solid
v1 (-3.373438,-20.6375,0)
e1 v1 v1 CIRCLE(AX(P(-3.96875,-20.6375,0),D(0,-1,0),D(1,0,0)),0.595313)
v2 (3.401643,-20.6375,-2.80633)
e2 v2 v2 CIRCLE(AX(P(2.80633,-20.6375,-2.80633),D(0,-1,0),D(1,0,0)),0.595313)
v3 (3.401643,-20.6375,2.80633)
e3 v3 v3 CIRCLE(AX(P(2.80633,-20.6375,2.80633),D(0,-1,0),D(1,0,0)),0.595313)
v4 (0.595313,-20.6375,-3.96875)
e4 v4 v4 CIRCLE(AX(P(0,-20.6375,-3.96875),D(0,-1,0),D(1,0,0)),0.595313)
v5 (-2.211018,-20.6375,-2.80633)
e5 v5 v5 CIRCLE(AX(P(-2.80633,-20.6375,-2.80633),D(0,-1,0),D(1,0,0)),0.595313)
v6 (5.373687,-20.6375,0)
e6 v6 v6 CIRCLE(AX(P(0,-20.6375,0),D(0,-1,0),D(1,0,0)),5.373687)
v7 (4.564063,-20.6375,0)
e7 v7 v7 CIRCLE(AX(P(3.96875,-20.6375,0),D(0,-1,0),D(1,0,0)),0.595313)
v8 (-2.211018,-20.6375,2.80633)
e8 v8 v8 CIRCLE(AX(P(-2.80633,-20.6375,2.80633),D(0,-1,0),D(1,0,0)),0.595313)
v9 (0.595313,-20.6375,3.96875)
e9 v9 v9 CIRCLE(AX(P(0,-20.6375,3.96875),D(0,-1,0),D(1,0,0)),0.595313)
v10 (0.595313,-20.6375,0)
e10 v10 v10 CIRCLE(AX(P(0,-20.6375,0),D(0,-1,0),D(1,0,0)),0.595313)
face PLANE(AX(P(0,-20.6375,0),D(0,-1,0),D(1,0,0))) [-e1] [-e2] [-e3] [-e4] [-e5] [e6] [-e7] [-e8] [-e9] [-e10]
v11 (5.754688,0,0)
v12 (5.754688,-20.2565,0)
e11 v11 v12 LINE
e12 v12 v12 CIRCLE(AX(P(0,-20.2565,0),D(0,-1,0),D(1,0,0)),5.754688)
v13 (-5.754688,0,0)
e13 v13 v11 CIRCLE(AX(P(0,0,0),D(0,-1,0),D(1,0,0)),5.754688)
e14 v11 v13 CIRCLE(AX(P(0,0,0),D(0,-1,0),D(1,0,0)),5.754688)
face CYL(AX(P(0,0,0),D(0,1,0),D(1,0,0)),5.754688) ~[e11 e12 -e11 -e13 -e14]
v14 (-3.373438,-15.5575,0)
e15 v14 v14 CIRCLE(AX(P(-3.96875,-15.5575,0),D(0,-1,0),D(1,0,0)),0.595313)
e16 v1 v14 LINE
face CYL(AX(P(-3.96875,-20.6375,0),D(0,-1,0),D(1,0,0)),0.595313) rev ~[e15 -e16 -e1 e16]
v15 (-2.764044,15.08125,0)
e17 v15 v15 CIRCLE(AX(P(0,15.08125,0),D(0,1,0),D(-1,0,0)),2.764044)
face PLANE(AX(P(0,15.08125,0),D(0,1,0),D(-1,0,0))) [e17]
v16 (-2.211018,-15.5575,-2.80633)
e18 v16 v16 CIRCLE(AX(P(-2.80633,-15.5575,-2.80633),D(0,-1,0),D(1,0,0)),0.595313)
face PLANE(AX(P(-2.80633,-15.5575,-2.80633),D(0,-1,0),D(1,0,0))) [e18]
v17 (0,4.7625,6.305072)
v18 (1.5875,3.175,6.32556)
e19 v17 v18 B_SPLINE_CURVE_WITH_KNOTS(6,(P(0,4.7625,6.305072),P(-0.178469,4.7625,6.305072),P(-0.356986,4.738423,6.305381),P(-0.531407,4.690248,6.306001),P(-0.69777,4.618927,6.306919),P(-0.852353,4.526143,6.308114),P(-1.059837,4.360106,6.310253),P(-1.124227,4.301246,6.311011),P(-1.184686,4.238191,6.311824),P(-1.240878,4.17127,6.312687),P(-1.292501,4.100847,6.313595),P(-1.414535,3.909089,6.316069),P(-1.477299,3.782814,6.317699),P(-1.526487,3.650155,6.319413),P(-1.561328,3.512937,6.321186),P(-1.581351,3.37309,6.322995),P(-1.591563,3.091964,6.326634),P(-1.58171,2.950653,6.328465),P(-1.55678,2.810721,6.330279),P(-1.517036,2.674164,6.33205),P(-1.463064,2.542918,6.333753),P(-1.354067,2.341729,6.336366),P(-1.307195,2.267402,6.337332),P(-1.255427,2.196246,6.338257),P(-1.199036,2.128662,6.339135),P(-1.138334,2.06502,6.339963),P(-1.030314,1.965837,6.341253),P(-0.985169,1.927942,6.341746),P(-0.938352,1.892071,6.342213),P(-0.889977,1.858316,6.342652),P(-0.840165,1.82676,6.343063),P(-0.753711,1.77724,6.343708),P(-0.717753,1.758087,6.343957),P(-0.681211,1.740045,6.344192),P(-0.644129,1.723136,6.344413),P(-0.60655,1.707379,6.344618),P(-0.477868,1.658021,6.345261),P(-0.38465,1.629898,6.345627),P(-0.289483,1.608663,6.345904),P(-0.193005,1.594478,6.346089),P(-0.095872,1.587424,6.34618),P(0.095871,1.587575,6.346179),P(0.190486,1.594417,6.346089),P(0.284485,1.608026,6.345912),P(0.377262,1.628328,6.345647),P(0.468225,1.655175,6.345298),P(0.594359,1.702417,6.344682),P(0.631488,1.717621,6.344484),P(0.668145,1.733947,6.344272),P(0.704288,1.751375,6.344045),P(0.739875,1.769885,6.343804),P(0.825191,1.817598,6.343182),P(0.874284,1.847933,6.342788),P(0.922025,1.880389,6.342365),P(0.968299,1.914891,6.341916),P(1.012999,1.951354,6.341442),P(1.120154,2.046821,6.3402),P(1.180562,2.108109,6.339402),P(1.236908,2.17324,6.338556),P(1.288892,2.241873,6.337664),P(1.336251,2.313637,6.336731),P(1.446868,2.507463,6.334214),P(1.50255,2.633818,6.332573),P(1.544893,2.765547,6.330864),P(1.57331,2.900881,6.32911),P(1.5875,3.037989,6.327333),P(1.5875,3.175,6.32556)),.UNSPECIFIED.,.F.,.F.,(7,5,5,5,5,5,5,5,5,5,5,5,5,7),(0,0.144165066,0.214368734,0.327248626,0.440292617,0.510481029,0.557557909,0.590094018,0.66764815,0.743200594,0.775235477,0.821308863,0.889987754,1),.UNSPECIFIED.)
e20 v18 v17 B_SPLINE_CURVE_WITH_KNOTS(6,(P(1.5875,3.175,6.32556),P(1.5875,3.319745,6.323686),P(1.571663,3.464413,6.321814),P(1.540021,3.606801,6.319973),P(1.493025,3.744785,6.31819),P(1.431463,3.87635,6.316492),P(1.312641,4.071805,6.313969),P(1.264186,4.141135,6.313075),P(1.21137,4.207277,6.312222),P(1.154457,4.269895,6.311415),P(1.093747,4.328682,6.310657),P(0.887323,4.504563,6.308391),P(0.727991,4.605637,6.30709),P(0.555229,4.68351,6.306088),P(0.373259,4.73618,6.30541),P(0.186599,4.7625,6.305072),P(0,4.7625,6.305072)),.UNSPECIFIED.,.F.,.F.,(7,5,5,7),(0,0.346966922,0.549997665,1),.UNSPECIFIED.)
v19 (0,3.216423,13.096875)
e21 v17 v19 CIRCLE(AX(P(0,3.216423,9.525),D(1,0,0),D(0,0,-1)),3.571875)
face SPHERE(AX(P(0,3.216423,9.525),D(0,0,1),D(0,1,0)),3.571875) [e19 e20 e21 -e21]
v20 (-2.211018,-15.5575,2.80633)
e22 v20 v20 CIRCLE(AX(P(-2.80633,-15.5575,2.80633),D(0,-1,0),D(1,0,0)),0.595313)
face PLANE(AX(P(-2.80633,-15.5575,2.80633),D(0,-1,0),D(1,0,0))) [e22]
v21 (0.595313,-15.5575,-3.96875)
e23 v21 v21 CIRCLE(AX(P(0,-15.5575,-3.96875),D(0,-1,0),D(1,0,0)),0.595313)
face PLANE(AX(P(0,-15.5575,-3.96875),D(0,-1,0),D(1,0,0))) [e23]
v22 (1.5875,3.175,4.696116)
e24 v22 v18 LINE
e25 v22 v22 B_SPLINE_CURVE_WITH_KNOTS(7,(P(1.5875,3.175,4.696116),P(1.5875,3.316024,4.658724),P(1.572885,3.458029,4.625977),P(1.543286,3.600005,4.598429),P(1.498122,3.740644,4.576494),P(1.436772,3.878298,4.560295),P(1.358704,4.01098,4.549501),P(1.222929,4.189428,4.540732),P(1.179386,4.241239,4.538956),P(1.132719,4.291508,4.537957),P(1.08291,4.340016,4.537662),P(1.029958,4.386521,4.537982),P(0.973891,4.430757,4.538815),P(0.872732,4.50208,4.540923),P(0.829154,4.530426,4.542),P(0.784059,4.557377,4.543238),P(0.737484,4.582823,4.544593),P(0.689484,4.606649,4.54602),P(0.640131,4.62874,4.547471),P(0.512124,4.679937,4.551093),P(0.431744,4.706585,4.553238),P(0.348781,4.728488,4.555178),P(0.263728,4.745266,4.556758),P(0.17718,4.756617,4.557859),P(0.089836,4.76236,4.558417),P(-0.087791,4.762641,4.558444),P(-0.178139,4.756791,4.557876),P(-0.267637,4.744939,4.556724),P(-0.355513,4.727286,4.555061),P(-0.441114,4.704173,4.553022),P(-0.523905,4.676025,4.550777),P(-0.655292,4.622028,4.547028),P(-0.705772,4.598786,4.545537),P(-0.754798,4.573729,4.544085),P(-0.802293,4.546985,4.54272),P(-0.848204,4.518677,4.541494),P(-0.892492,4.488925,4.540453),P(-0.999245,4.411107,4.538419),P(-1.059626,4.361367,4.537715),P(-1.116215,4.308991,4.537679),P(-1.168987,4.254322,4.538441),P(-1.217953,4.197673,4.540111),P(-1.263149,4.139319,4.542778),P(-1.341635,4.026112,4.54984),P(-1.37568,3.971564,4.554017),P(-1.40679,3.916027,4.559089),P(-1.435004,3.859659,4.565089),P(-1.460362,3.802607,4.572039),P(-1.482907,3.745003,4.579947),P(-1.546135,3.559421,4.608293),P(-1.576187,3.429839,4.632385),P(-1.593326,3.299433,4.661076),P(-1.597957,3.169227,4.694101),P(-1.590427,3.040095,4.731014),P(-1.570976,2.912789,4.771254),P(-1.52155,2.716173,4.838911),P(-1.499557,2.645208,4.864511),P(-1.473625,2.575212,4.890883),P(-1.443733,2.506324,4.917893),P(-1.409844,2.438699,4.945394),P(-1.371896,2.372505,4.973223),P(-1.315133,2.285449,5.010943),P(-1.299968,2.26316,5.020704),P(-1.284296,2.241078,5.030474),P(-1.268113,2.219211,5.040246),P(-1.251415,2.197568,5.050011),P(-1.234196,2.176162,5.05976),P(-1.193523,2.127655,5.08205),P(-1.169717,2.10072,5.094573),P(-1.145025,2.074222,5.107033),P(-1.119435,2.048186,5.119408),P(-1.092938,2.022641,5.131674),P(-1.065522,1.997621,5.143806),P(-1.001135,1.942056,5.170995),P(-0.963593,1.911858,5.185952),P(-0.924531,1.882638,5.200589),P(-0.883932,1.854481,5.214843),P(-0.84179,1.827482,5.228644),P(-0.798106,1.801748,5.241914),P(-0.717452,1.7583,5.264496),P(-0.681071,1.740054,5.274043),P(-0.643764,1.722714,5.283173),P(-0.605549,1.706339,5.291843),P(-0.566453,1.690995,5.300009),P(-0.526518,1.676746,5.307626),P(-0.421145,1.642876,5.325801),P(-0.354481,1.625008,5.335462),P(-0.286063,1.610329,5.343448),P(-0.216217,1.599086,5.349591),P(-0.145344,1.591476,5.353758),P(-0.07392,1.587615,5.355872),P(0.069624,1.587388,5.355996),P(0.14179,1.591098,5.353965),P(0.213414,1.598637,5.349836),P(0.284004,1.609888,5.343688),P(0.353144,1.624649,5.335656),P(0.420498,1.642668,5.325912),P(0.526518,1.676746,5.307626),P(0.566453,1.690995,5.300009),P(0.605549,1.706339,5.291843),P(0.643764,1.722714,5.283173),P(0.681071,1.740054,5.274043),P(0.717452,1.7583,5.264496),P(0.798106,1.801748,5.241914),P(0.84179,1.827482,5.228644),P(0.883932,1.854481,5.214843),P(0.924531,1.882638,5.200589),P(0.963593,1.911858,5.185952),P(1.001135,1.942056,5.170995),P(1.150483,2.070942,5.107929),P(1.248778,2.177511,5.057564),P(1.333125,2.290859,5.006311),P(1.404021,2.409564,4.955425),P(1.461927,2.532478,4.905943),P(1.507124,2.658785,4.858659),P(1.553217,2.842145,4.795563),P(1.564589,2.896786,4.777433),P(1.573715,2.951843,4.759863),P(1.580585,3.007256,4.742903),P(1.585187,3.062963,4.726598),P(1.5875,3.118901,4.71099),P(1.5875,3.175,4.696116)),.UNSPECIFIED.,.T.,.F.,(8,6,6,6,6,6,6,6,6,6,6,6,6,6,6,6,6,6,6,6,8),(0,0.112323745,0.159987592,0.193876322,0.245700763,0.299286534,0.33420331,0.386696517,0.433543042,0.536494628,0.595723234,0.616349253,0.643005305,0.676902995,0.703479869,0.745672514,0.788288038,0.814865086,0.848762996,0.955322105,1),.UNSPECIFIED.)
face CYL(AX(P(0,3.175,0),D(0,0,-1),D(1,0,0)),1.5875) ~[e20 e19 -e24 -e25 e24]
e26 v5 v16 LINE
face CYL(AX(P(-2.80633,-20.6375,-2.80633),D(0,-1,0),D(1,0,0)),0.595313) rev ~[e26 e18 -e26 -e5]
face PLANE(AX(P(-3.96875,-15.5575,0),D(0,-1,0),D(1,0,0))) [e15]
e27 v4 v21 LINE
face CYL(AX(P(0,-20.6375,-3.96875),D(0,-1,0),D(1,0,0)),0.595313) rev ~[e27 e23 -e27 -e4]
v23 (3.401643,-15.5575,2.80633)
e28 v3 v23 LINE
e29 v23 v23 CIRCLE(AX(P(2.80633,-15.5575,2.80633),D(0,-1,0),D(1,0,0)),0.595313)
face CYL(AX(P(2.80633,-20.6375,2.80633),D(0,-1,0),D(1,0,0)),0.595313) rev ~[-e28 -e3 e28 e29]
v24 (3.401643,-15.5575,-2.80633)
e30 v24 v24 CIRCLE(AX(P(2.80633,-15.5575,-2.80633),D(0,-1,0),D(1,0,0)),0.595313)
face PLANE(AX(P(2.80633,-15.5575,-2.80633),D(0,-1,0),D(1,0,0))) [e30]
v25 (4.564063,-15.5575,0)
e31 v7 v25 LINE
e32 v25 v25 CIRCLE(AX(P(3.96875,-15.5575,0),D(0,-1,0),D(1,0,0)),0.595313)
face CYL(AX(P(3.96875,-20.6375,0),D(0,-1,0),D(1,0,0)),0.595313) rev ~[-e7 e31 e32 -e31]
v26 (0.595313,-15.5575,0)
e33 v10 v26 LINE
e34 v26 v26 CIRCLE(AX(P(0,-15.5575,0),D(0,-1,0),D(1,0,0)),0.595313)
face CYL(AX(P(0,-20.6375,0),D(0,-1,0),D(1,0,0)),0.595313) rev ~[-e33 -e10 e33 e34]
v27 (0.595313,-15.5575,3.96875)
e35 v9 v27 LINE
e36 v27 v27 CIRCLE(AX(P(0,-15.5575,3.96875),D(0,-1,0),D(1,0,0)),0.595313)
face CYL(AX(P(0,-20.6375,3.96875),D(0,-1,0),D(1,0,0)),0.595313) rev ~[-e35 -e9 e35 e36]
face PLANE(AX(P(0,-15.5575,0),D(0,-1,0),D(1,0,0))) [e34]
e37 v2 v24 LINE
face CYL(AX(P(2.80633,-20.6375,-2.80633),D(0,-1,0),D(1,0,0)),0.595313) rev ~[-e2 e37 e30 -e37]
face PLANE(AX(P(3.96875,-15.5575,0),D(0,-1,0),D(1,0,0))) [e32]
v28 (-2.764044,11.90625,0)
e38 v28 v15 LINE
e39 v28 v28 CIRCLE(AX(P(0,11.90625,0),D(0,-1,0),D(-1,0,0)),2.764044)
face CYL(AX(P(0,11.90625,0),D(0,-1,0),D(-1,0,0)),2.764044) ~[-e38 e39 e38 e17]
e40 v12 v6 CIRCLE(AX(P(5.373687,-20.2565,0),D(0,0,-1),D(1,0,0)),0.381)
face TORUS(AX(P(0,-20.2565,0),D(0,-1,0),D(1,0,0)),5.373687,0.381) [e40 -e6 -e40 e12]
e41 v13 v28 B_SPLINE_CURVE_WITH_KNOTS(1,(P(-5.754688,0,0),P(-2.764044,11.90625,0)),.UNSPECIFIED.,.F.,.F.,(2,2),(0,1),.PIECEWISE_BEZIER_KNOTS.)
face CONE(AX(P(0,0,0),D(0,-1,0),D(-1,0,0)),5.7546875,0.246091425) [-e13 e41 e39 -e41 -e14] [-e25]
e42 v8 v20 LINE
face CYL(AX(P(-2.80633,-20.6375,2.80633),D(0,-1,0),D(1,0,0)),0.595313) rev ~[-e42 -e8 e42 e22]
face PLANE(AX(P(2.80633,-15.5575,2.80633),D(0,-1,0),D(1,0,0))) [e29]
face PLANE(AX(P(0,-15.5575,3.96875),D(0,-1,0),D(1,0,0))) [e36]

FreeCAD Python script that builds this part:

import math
import FreeCAD as App
import Part
import Sketcher
Q = App.Units.Quantity


def edges_at(feature, points):
    """Names of the edges that pass closest to the given points."""
    edges = feature.Shape.Edges
    near = lambda p: min(range(len(edges)), key=lambda i: edges[i].distToShape(Part.Vertex(*p))[0])
    return sorted({f"Edge{near(p) + 1}" for p in points})

doc = App.newDocument("Part")
body = doc.addObject("PartDesign::Body", "Body")

sketch1 = body.newObject("Sketcher::SketchObject", "Sketch")
sketch1.AttachmentSupport = (doc.getObject("XZ_Plane"), [""])
sketch1.MapMode = "FlatFace"
sketch1.addGeometry(Part.Circle(App.Vector(0, 0, 0), App.Vector(0, 0, 1), 6), False)
sketch1.addConstraint(Sketcher.Constraint("Coincident", 0, 3, -1, 1))
sketch1.addConstraint(Sketcher.Constraint("Diameter", 0, Q("0.453125 in")))
pad1 = body.newObject("PartDesign::Pad", "Pad")
pad1.Profile = sketch1
pad1.Length = Q("0.8125 in")

sketch2 = body.newObject("Sketcher::SketchObject", "Sketch001")
sketch2.AttachmentSupport = (doc.getObject("XZ_Plane"), [""])
sketch2.MapMode = "FlatFace"
sketch2.addGeometry(Part.Circle(App.Vector(0, 0, 0), App.Vector(0, 0, 1), 6), False)
sketch2.addConstraint(Sketcher.Constraint("Coincident", 0, 3, -1, 1))
sketch2.addConstraint(Sketcher.Constraint("Diameter", 0, Q("0.453125 in")))
pad2 = body.newObject("PartDesign::Pad", "Pad001")
pad2.Profile = sketch2
pad2.Length = Q("0.46875 in")
pad2.Reversed = True
pad2.TaperAngle = -14.1

sketch3 = body.newObject("Sketcher::SketchObject", "Sketch002")
sketch3.AttachmentSupport = (doc.getObject("XZ_Plane"), [""])
sketch3.MapMode = "FlatFace"
sketch3.AttachmentOffset = App.Placement(App.Vector(0, 0, -0.46875 * 25.4), App.Rotation())
sketch3.addGeometry(Part.Circle(App.Vector(0, 0, 0), App.Vector(0, 0, 1), 2.8), False)
sketch3.addConstraint(Sketcher.Constraint("Coincident", 0, 3, -1, 1))
sketch3.addConstraint(Sketcher.Constraint("Diameter", 0, 5.528088))
pad3 = body.newObject("PartDesign::Pad", "Pad002")
pad3.Profile = sketch3
pad3.Length = Q("0.125 in")
pad3.Reversed = True

sketch4 = body.newObject("Sketcher::SketchObject", "Sketch003")
sketch4.AttachmentSupport = (doc.getObject("XZ_Plane"), [""])
sketch4.MapMode = "FlatFace"
sketch4.AttachmentOffset = App.Placement(App.Vector(0, 0, 0.8125 * 25.4), App.Rotation())
sketch4.addGeometry(Part.Circle(App.Vector(0, 0, 0), App.Vector(0, 0, 1), 0.6), False)
sketch4.addGeometry(Part.Circle(App.Vector(0, 4, 0), App.Vector(0, 0, 1), 0.6), False)
sketch4.addGeometry(Part.Circle(App.Vector(-2.8, 2.8, 0), App.Vector(0, 0, 1), 0.6), False)
sketch4.addGeometry(Part.Circle(App.Vector(-4, 0, 0), App.Vector(0, 0, 1), 0.6), False)
sketch4.addGeometry(Part.Circle(App.Vector(-2.8, -2.8, 0), App.Vector(0, 0, 1), 0.6), False)
sketch4.addGeometry(Part.Circle(App.Vector(0, -4, 0), App.Vector(0, 0, 1), 0.6), False)
sketch4.addGeometry(Part.Circle(App.Vector(2.8, -2.8, 0), App.Vector(0, 0, 1), 0.6), False)
sketch4.addGeometry(Part.Circle(App.Vector(4, 0, 0), App.Vector(0, 0, 1), 0.6), False)
sketch4.addGeometry(Part.Circle(App.Vector(2.8, 2.8, 0), App.Vector(0, 0, 1), 0.6), False)
sketch4.addConstraint(Sketcher.Constraint("Coincident", 0, 3, -1, 1))
sketch4.addConstraint(Sketcher.Constraint("Equal", 0, 1))
sketch4.addConstraint(Sketcher.Constraint("Equal", 1, 2))
sketch4.addConstraint(Sketcher.Constraint("Equal", 2, 3))
sketch4.addConstraint(Sketcher.Constraint("Equal", 3, 4))
sketch4.addConstraint(Sketcher.Constraint("Equal", 4, 5))
sketch4.addConstraint(Sketcher.Constraint("Equal", 5, 6))
sketch4.addConstraint(Sketcher.Constraint("Equal", 6, 7))
sketch4.addConstraint(Sketcher.Constraint("Equal", 7, 8))
sketch4.addConstraint(Sketcher.Constraint("Symmetric", 1, 3, 5, 3, -1, 1))
sketch4.addConstraint(Sketcher.Constraint("Symmetric", 2, 3, 6, 3, -1, 1))
sketch4.addConstraint(Sketcher.Constraint("Symmetric", 3, 3, 7, 3, -1, 1))
sketch4.addConstraint(Sketcher.Constraint("Symmetric", 4, 3, 8, 3, -1, 1))
sketch4.addConstraint(Sketcher.Constraint("Symmetric", 4, 3, 6, 3, -2))
sketch4.addConstraint(Sketcher.Constraint("PointOnObject", 1, 3, -2))
sketch4.addConstraint(Sketcher.Constraint("PointOnObject", 3, 3, -1))
sketch4.addConstraint(Sketcher.Constraint("Diameter", 0, Q("0.046875 in")))
sketch4.addConstraint(Sketcher.Constraint("DistanceY", -1, 1, 1, 3, Q("0.15625 in")))
sketch4.addConstraint(Sketcher.Constraint("DistanceX", 3, 3, -1, 1, Q("0.15625 in")))
sketch4.addConstraint(Sketcher.Constraint("DistanceX", 2, 3, -1, 1, 2.80633))
sketch4.addConstraint(Sketcher.Constraint("DistanceY", -1, 1, 2, 3, 2.80633))
pocket1 = body.newObject("PartDesign::Pocket", "Pocket")
pocket1.Profile = sketch4
pocket1.Length = Q("0.2 in")
doc.recompute()

fillet = body.newObject("PartDesign::Fillet", "Fillet")
fillet.Base = (pocket1, edges_at(pocket1, [(-5.755, -20.637, 0)]))
fillet.Radius = Q("0.015 in")

sketch5 = body.newObject("Sketcher::SketchObject", "Sketch004")
sketch5.AttachmentSupport = (doc.getObject("XY_Plane"), [""])
sketch5.MapMode = "FlatFace"
sketch5.addGeometry(Part.Circle(App.Vector(0, 3.2, 0), App.Vector(0, 0, 1), 1.6), False)
sketch5.addConstraint(Sketcher.Constraint("PointOnObject", 0, 3, -2))
sketch5.addConstraint(Sketcher.Constraint("Diameter", 0, Q("0.125 in")))
sketch5.addConstraint(Sketcher.Constraint("DistanceY", -1, 1, 0, 3, Q("0.125 in")))
pad4 = body.newObject("PartDesign::Pad", "Pad003")
pad4.Profile = sketch5
pad4.Length = Q("0.375 in")

sketch6 = body.newObject("Sketcher::SketchObject", "Sketch005")
sketch6.AttachmentSupport = (doc.getObject("YZ_Plane"), [""])
sketch6.MapMode = "FlatFace"
sketch6.addGeometry(Part.LineSegment(App.Vector(3.2, 13.1, 0), App.Vector(3.2, 6, 0)), False)
sketch6.addGeometry(Part.ArcOfCircle(Part.Circle(App.Vector(3.2, 9.5, 0), App.Vector(0, 0, 1), 3.6), math.radians(-90), math.radians(90)), False)
sketch6.addGeometry(Part.LineSegment(App.Vector(3.2, 6, 0), App.Vector(3.2, 13.1, 0)), True)
sketch6.addConstraint(Sketcher.Constraint("Coincident", 0, 1, 1, 2))
sketch6.addConstraint(Sketcher.Constraint("Coincident", 1, 1, 0, 2))
sketch6.addConstraint(Sketcher.Constraint("Vertical", 0))
sketch6.addConstraint(Sketcher.Constraint("Vertical", 2))
sketch6.addConstraint(Sketcher.Constraint("Coincident", 2, 1, 1, 1))
sketch6.addConstraint(Sketcher.Constraint("Vertical", 1, 3, 0, 1))
sketch6.addConstraint(Sketcher.Constraint("Equal", 0, 2))
sketch6.addConstraint(Sketcher.Constraint("Radius", 1, Q("0.140625 in")))
sketch6.addConstraint(Sketcher.Constraint("DistanceY", -1, 1, 1, 3, Q("0.375 in")))
sketch6.addConstraint(Sketcher.Constraint("DistanceX", -1, 1, 1, 3, 3.216423))
revolution = body.newObject("PartDesign::Revolution", "Revolution")
revolution.Profile = sketch6
revolution.ReferenceAxis = (sketch6, ["Axis0"])
revolution.Angle = 360

doc.recompute()
